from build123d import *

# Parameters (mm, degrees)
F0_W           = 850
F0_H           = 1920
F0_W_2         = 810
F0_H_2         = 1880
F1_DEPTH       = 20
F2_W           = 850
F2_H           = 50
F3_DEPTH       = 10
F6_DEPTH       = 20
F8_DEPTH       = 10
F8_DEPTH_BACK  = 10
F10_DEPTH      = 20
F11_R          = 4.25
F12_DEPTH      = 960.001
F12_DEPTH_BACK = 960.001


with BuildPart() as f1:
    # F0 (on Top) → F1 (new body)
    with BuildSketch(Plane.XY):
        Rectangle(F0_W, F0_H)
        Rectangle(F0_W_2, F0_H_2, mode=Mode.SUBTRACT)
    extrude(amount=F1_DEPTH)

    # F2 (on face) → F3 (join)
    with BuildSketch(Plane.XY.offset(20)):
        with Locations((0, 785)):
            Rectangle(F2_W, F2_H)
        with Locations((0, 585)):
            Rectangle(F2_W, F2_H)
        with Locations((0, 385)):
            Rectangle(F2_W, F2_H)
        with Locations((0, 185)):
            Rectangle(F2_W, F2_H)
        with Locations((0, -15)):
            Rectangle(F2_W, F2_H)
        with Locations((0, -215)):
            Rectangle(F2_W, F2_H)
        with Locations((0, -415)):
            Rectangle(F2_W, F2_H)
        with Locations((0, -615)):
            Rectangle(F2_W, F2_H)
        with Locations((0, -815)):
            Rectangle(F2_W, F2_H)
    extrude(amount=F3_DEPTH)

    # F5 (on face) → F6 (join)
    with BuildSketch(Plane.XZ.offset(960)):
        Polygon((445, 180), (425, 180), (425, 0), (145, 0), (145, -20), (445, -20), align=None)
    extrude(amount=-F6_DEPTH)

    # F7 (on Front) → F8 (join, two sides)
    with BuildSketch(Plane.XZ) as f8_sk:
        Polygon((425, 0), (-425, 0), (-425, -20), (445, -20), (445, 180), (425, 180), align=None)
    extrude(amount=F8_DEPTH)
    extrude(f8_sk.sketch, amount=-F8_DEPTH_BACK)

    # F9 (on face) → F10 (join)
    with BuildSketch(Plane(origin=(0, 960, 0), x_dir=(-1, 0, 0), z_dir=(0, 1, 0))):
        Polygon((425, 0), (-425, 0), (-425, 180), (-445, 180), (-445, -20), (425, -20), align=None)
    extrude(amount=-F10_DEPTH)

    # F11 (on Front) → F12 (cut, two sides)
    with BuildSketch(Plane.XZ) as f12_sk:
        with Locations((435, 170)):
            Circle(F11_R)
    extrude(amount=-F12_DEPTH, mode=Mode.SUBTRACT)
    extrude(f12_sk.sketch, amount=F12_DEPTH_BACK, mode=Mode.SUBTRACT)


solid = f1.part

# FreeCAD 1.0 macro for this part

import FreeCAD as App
import Part
import Sketcher

V = App.Vector
Q = App.Units.Quantity

doc = App.newDocument("Part")
body = doc.addObject("PartDesign::Body", "Body")

sketch1 = body.newObject("Sketcher::SketchObject", "Sketch")
sketch1.AttachmentSupport = (doc.getObject("XY_Plane"), [""])
sketch1.MapMode = "FlatFace"
sketch1.addGeometry([
    Part.LineSegment(V(-425, 960, 0), V(-425, -960, 0)),
    Part.LineSegment(V(-425, -960, 0), V(425, -960, 0)),
    Part.LineSegment(V(425, -960, 0), V(425, 960, 0)),
    Part.LineSegment(V(425, 960, 0), V(-425, 960, 0)),
    Part.LineSegment(V(405, -940, 0), V(-405, -940, 0)),
    Part.LineSegment(V(-405, -940, 0), V(-405, 940, 0)),
    Part.LineSegment(V(-405, 940, 0), V(405, 940, 0)),
    Part.LineSegment(V(405, 940, 0), V(405, -940, 0)),
], False)
sketch1.addConstraint([
    Sketcher.Constraint("Coincident", 0, 2, 1, 1),
    Sketcher.Constraint("Coincident", 1, 2, 2, 1),
    Sketcher.Constraint("Coincident", 2, 2, 3, 1),
    Sketcher.Constraint("Coincident", 3, 2, 0, 1),
    Sketcher.Constraint("Coincident", 4, 2, 5, 1),
    Sketcher.Constraint("Coincident", 5, 2, 6, 1),
    Sketcher.Constraint("Coincident", 6, 2, 7, 1),
    Sketcher.Constraint("Coincident", 7, 2, 4, 1),
    Sketcher.Constraint("Vertical", 0),
    Sketcher.Constraint("Horizontal", 1),
    Sketcher.Constraint("Vertical", 2),
    Sketcher.Constraint("Horizontal", 3),
    Sketcher.Constraint("Horizontal", 4),
    Sketcher.Constraint("Vertical", 5),
    Sketcher.Constraint("Horizontal", 6),
    Sketcher.Constraint("Vertical", 7),
    Sketcher.Constraint("Symmetric", 0, 2, 2, 2, -1, 1),
    Sketcher.Constraint("Symmetric", 4, 2, 6, 2, -1, 1),
    Sketcher.Constraint("DistanceX", 1, 1, 1, 2, Q("850 mm")),
    Sketcher.Constraint("DistanceX", 4, 2, 4, 1, Q("810 mm")),
    Sketcher.Constraint("DistanceY", 0, 2, 0, 1, Q("1920 mm")),
    Sketcher.Constraint("DistanceY", 5, 1, 5, 2, Q("1880 mm")),
])
pad1 = body.newObject("PartDesign::Pad", "Pad")
pad1.Profile = sketch1
pad1.Length = 20

sketch2 = body.newObject("Sketcher::SketchObject", "Sketch001")
sketch2.AttachmentSupport = (doc.getObject("XY_Plane"), [""])
sketch2.MapMode = "FlatFace"
sketch2.AttachmentOffset = App.Placement(V(0, 0, 20), App.Rotation())
sketch2.addGeometry([
    Part.LineSegment(V(-425, 810, 0), V(-425, 760, 0)),
    Part.LineSegment(V(-425, 760, 0), V(425, 760, 0)),
    Part.LineSegment(V(425, 760, 0), V(425, 810, 0)),
    Part.LineSegment(V(425, 810, 0), V(-425, 810, 0)),
    Part.LineSegment(V(-425, 610, 0), V(-425, 560, 0)),
    Part.LineSegment(V(-425, 560, 0), V(425, 560, 0)),
    Part.LineSegment(V(425, 560, 0), V(425, 610, 0)),
    Part.LineSegment(V(425, 610, 0), V(-425, 610, 0)),
    Part.LineSegment(V(-425, 410, 0), V(-425, 360, 0)),
    Part.LineSegment(V(-425, 360, 0), V(425, 360, 0)),
    Part.LineSegment(V(425, 360, 0), V(425, 410, 0)),
    Part.LineSegment(V(425, 410, 0), V(-425, 410, 0)),
    Part.LineSegment(V(-425, 210, 0), V(-425, 160, 0)),
    Part.LineSegment(V(-425, 160, 0), V(425, 160, 0)),
    Part.LineSegment(V(425, 160, 0), V(425, 210, 0)),
    Part.LineSegment(V(425, 210, 0), V(-425, 210, 0)),
    Part.LineSegment(V(-425, 10, 0), V(-425, -40, 0)),
    Part.LineSegment(V(-425, -40, 0), V(425, -40, 0)),
    Part.LineSegment(V(425, -40, 0), V(425, 10, 0)),
    Part.LineSegment(V(425, 10, 0), V(-425, 10, 0)),
    Part.LineSegment(V(-425, -190, 0), V(-425, -240, 0)),
    Part.LineSegment(V(-425, -240, 0), V(425, -240, 0)),
    Part.LineSegment(V(425, -240, 0), V(425, -190, 0)),
    Part.LineSegment(V(425, -190, 0), V(-425, -190, 0)),
    Part.LineSegment(V(-425, -390, 0), V(-425, -440, 0)),
    Part.LineSegment(V(-425, -440, 0), V(425, -440, 0)),
    Part.LineSegment(V(425, -440, 0), V(425, -390, 0)),
    Part.LineSegment(V(425, -390, 0), V(-425, -390, 0)),
    Part.LineSegment(V(-425, -590, 0), V(-425, -640, 0)),
    Part.LineSegment(V(-425, -640, 0), V(425, -640, 0)),
    Part.LineSegment(V(425, -640, 0), V(425, -590, 0)),
    Part.LineSegment(V(425, -590, 0), V(-425, -590, 0)),
    Part.LineSegment(V(-425, -790, 0), V(-425, -840, 0)),
    Part.LineSegment(V(-425, -840, 0), V(425, -840, 0)),
    Part.LineSegment(V(425, -840, 0), V(425, -790, 0)),
    Part.LineSegment(V(425, -790, 0), V(-425, -790, 0)),
], False)
sketch2.addConstraint([
    Sketcher.Constraint("Coincident", 0, 2, 1, 1),
    Sketcher.Constraint("Coincident", 1, 2, 2, 1),
    Sketcher.Constraint("Coincident", 2, 2, 3, 1),
    Sketcher.Constraint("Coincident", 3, 2, 0, 1),
    Sketcher.Constraint("Coincident", 4, 2, 5, 1),
    Sketcher.Constraint("Coincident", 5, 2, 6, 1),
    Sketcher.Constraint("Coincident", 6, 2, 7, 1),
    Sketcher.Constraint("Coincident", 7, 2, 4, 1),
    Sketcher.Constraint("Coincident", 8, 2, 9, 1),
    Sketcher.Constraint("Coincident", 9, 2, 10, 1),
    Sketcher.Constraint("Coincident", 10, 2, 11, 1),
    Sketcher.Constraint("Coincident", 11, 2, 8, 1),
    Sketcher.Constraint("Coincident", 12, 2, 13, 1),
    Sketcher.Constraint("Coincident", 13, 2, 14, 1),
    Sketcher.Constraint("Coincident", 14, 2, 15, 1),
    Sketcher.Constraint("Coincident", 15, 2, 12, 1),
    Sketcher.Constraint("Coincident", 16, 2, 17, 1),
    Sketcher.Constraint("Coincident", 17, 2, 18, 1),
    Sketcher.Constraint("Coincident", 18, 2, 19, 1),
    Sketcher.Constraint("Coincident", 19, 2, 16, 1),
    Sketcher.Constraint("Coincident", 20, 2, 21, 1),
    Sketcher.Constraint("Coincident", 21, 2, 22, 1),
    Sketcher.Constraint("Coincident", 22, 2, 23, 1),
    Sketcher.Constraint("Coincident", 23, 2, 20, 1),
    Sketcher.Constraint("Coincident", 24, 2, 25, 1),
    Sketcher.Constraint("Coincident", 25, 2, 26, 1),
    Sketcher.Constraint("Coincident", 26, 2, 27, 1),
    Sketcher.Constraint("Coincident", 27, 2, 24, 1),
    Sketcher.Constraint("Coincident", 28, 2, 29, 1),
    Sketcher.Constraint("Coincident", 29, 2, 30, 1),
    Sketcher.Constraint("Coincident", 30, 2, 31, 1),
    Sketcher.Constraint("Coincident", 31, 2, 28, 1),
    Sketcher.Constraint("Coincident", 32, 2, 33, 1),
    Sketcher.Constraint("Coincident", 33, 2, 34, 1),
    Sketcher.Constraint("Coincident", 34, 2, 35, 1),
    Sketcher.Constraint("Coincident", 35, 2, 32, 1),
    Sketcher.Constraint("Vertical", 0),
    Sketcher.Constraint("Horizontal", 1),
    Sketcher.Constraint("Vertical", 2),
    Sketcher.Constraint("Horizontal", 3),
    Sketcher.Constraint("Vertical", 4),
    Sketcher.Constraint("Horizontal", 5),
    Sketcher.Constraint("Vertical", 6),
    Sketcher.Constraint("Horizontal", 7),
    Sketcher.Constraint("Vertical", 8),
    Sketcher.Constraint("Horizontal", 9),
    Sketcher.Constraint("Vertical", 10),
    Sketcher.Constraint("Horizontal", 11),
    Sketcher.Constraint("Vertical", 12),
    Sketcher.Constraint("Horizontal", 13),
    Sketcher.Constraint("Vertical", 14),
    Sketcher.Constraint("Horizontal", 15),
    Sketcher.Constraint("Vertical", 16),
    Sketcher.Constraint("Horizontal", 17),
    Sketcher.Constraint("Vertical", 18),
    Sketcher.Constraint("Horizontal", 19),
    Sketcher.Constraint("Vertical", 20),
    Sketcher.Constraint("Horizontal", 21),
    Sketcher.Constraint("Vertical", 22),
    Sketcher.Constraint("Horizontal", 23),
    Sketcher.Constraint("Vertical", 24),
    Sketcher.Constraint("Horizontal", 25),
    Sketcher.Constraint("Vertical", 26),
    Sketcher.Constraint("Horizontal", 27),
    Sketcher.Constraint("Vertical", 28),
    Sketcher.Constraint("Horizontal", 29),
    Sketcher.Constraint("Vertical", 30),
    Sketcher.Constraint("Horizontal", 31),
    Sketcher.Constraint("Vertical", 32),
    Sketcher.Constraint("Horizontal", 33),
    Sketcher.Constraint("Vertical", 34),
    Sketcher.Constraint("Horizontal", 35),
    Sketcher.Constraint("Vertical", 3, 2, 4, 2),
    Sketcher.Constraint("Vertical", 2, 2, 5, 2),
    Sketcher.Constraint("Vertical", 7, 2, 8, 2),
    Sketcher.Constraint("Vertical", 6, 2, 9, 2),
    Sketcher.Constraint("Vertical", 11, 2, 12, 2),
    Sketcher.Constraint("Vertical", 10, 2, 13, 2),
    Sketcher.Constraint("Vertical", 15, 2, 16, 2),
    Sketcher.Constraint("Vertical", 14, 2, 17, 2),
    Sketcher.Constraint("Vertical", 19, 2, 20, 2),
    Sketcher.Constraint("Vertical", 18, 2, 21, 2),
    Sketcher.Constraint("Vertical", 23, 2, 24, 2),
    Sketcher.Constraint("Vertical", 22, 2, 25, 2),
    Sketcher.Constraint("Vertical", 27, 2, 28, 2),
    Sketcher.Constraint("Vertical", 26, 2, 29, 2),
    Sketcher.Constraint("Vertical", 31, 2, 32, 2),
    Sketcher.Constraint("Vertical", 30, 2, 33, 2),
    Sketcher.Constraint("Equal", 2, 4),
    Sketcher.Constraint("Equal", 6, 8),
    Sketcher.Constraint("Equal", 10, 12),
    Sketcher.Constraint("Equal", 14, 16),
    Sketcher.Constraint("Equal", 18, 20),
    Sketcher.Constraint("Equal", 22, 24),
    Sketcher.Constraint("Equal", 26, 28),
    Sketcher.Constraint("Equal", 30, 32),
    Sketcher.Constraint("DistanceX", 1, 1, 1, 2, Q("850 mm")),
    Sketcher.Constraint("DistanceY", 0, 2, 0, 1, Q("50 mm")),
    Sketcher.Constraint("DistanceX", 0, 2, -1, 1, Q("425 mm")),
    Sketcher.Constraint("DistanceY", -1, 1, 0, 2, Q("760 mm")),
    Sketcher.Constraint("DistanceY", -1, 1, 4, 2, Q("560 mm")),
    Sketcher.Constraint("DistanceY", -1, 1, 8, 2, Q("360 mm")),
    Sketcher.Constraint("DistanceY", -1, 1, 12, 2, Q("160 mm")),
    Sketcher.Constraint("DistanceY", 16, 2, -1, 1, Q("40 mm")),
    Sketcher.Constraint("DistanceY", 20, 2, -1, 1, Q("240 mm")),
    Sketcher.Constraint("DistanceY", 24, 2, -1, 1, Q("440 mm")),
    Sketcher.Constraint("DistanceY", 28, 2, -1, 1, Q("640 mm")),
    Sketcher.Constraint("DistanceY", 32, 2, -1, 1, Q("840 mm")),
])
pad2 = body.newObject("PartDesign::Pad", "Pad001")
pad2.Profile = sketch2
pad2.Length = 10

sketch3 = body.newObject("Sketcher::SketchObject", "Sketch002")
sketch3.AttachmentSupport = (doc.getObject("XZ_Plane"), [""])
sketch3.MapMode = "FlatFace"
sketch3.AttachmentOffset = App.Placement(V(0, 0, 960), App.Rotation())
sketch3.addGeometry([
    Part.LineSegment(V(445, 180, 0), V(425, 180, 0)),
    Part.LineSegment(V(425, 180, 0), V(425, 0, 0)),
    Part.LineSegment(V(425, 0, 0), V(145, 0, 0)),
    Part.LineSegment(V(145, 0, 0), V(145, -20, 0)),
    Part.LineSegment(V(145, -20, 0), V(445, -20, 0)),
    Part.LineSegment(V(445, -20, 0), V(445, 180, 0)),
], False)
sketch3.addConstraint([
    Sketcher.Constraint("Coincident", 0, 2, 1, 1),
    Sketcher.Constraint("Coincident", 1, 2, 2, 1),
    Sketcher.Constraint("Coincident", 2, 2, 3, 1),
    Sketcher.Constraint("Coincident", 3, 2, 4, 1),
    Sketcher.Constraint("Coincident", 4, 2, 5, 1),
    Sketcher.Constraint("Coincident", 5, 2, 0, 1),
    Sketcher.Constraint("Horizontal", 0),
    Sketcher.Constraint("Vertical", 1),
    Sketcher.Constraint("Horizontal", 2),
    Sketcher.Constraint("Vertical", 3),
    Sketcher.Constraint("Horizontal", 4),
    Sketcher.Constraint("Vertical", 5),
    Sketcher.Constraint("PointOnObject", 1, 2, -1),
    Sketcher.Constraint("Equal", 0, 3),
    Sketcher.Constraint("DistanceX", 0, 2, 0, 1, Q("20 mm")),
    Sketcher.Constraint("DistanceX", 2, 2, 2, 1, Q("280 mm")),
    Sketcher.Constraint("DistanceY", 1, 2, 1, 1, Q("180 mm")),
    Sketcher.Constraint("DistanceX", -1, 1, 0, 2, Q("425 mm")),
])
pad3 = body.newObject("PartDesign::Pad", "Pad002")
pad3.Profile = sketch3
pad3.Length = 20
pad3.Reversed = True

sketch4 = body.newObject("Sketcher::SketchObject", "Sketch003")
sketch4.AttachmentSupport = (doc.getObject("XZ_Plane"), [""])
sketch4.MapMode = "FlatFace"
sketch4.addGeometry([
    Part.LineSegment(V(425, 0, 0), V(-425, 0, 0)),
    Part.LineSegment(V(-425, 0, 0), V(-425, -20, 0)),
    Part.LineSegment(V(-425, -20, 0), V(445, -20, 0)),
    Part.LineSegment(V(445, -20, 0), V(445, 180, 0)),
    Part.LineSegment(V(445, 180, 0), V(425, 180, 0)),
    Part.LineSegment(V(425, 180, 0), V(425, 0, 0)),
], False)
sketch4.addConstraint([
    Sketcher.Constraint("Coincident", 0, 2, 1, 1),
    Sketcher.Constraint("Coincident", 1, 2, 2, 1),
    Sketcher.Constraint("Coincident", 2, 2, 3, 1),
    Sketcher.Constraint("Coincident", 3, 2, 4, 1),
    Sketcher.Constraint("Coincident", 4, 2, 5, 1),
    Sketcher.Constraint("Coincident", 5, 2, 0, 1),
    Sketcher.Constraint("Horizontal", 0),
    Sketcher.Constraint("Vertical", 1),
    Sketcher.Constraint("Horizontal", 2),
    Sketcher.Constraint("Vertical", 3),
    Sketcher.Constraint("Horizontal", 4),
    Sketcher.Constraint("Vertical", 5),
    Sketcher.Constraint("Symmetric", 0, 2, 5, 2, -1, 1),
    Sketcher.Constraint("Equal", 4, 1),
    Sketcher.Constraint("DistanceX", 0, 2, 0, 1, Q("850 mm")),
    Sketcher.Constraint("DistanceX", 2, 1, 2, 2, Q("870 mm")),
    Sketcher.Constraint("DistanceY", 3, 1, 3, 2, Q("200 mm")),
])
pad4 = body.newObject("PartDesign::Pad", "Pad003")
pad4.Profile = sketch4
pad4.Type = "TwoLengths"
pad4.Length = 10
pad4.Length2 = 10

sketch5 = body.newObject("Sketcher::SketchObject", "Sketch004")
sketch5.AttachmentSupport = (doc.getObject("XZ_Plane"), [""])
sketch5.MapMode = "FlatFace"
sketch5.AttachmentOffset = App.Placement(V(0, 0, -960), App.Rotation())
sketch5.addGeometry([
    Part.LineSegment(V(-425, 0, 0), V(425, 0, 0)),
    Part.LineSegment(V(425, 0, 0), V(425, 180, 0)),
    Part.LineSegment(V(425, 180, 0), V(445, 180, 0)),
    Part.LineSegment(V(445, 180, 0), V(445, -20, 0)),
    Part.LineSegment(V(445, -20, 0), V(-425, -20, 0)),
    Part.LineSegment(V(-425, -20, 0), V(-425, 0, 0)),
], False)
sketch5.addConstraint([
    Sketcher.Constraint("Coincident", 0, 2, 1, 1),
    Sketcher.Constraint("Coincident", 1, 2, 2, 1),
    Sketcher.Constraint("Coincident", 2, 2, 3, 1),
    Sketcher.Constraint("Coincident", 3, 2, 4, 1),
    Sketcher.Constraint("Coincident", 4, 2, 5, 1),
    Sketcher.Constraint("Coincident", 5, 2, 0, 1),
    Sketcher.Constraint("Horizontal", 0),
    Sketcher.Constraint("Vertical", 1),
    Sketcher.Constraint("Horizontal", 2),
    Sketcher.Constraint("Vertical", 3),
    Sketcher.Constraint("Horizontal", 4),
    Sketcher.Constraint("Vertical", 5),
    Sketcher.Constraint("Symmetric", 0, 2, 5, 2, -1, 1),
    Sketcher.Constraint("Equal", 2, 5),
    Sketcher.Constraint("DistanceX", 0, 1, 0, 2, Q("850 mm")),
    Sketcher.Constraint("DistanceX", 2, 1, 2, 2, Q("20 mm")),
    Sketcher.Constraint("DistanceY", 1, 1, 1, 2, Q("180 mm")),
])
pad5 = body.newObject("PartDesign::Pad", "Pad004")
pad5.Profile = sketch5
pad5.Length = 20

sketch6 = body.newObject("Sketcher::SketchObject", "Sketch005")
sketch6.AttachmentSupport = (doc.getObject("XZ_Plane"), [""])
sketch6.MapMode = "FlatFace"
sketch6.addGeometry(Part.Circle(V(435, 170, 0), V(0, 0, 1), 4.2), False)
sketch6.addConstraint([
    Sketcher.Constraint("Diameter", 0, Q("8.5 mm")),
    Sketcher.Constraint("DistanceX", -1, 1, 0, 3, Q("435 mm")),
    Sketcher.Constraint("DistanceY", -1, 1, 0, 3, Q("170 mm")),
])
pocket1 = body.newObject("PartDesign::Pocket", "Pocket")
pocket1.Profile = sketch6
pocket1.Type = "ThroughAll"
pocket1.Midplane = True

doc.recompute()
